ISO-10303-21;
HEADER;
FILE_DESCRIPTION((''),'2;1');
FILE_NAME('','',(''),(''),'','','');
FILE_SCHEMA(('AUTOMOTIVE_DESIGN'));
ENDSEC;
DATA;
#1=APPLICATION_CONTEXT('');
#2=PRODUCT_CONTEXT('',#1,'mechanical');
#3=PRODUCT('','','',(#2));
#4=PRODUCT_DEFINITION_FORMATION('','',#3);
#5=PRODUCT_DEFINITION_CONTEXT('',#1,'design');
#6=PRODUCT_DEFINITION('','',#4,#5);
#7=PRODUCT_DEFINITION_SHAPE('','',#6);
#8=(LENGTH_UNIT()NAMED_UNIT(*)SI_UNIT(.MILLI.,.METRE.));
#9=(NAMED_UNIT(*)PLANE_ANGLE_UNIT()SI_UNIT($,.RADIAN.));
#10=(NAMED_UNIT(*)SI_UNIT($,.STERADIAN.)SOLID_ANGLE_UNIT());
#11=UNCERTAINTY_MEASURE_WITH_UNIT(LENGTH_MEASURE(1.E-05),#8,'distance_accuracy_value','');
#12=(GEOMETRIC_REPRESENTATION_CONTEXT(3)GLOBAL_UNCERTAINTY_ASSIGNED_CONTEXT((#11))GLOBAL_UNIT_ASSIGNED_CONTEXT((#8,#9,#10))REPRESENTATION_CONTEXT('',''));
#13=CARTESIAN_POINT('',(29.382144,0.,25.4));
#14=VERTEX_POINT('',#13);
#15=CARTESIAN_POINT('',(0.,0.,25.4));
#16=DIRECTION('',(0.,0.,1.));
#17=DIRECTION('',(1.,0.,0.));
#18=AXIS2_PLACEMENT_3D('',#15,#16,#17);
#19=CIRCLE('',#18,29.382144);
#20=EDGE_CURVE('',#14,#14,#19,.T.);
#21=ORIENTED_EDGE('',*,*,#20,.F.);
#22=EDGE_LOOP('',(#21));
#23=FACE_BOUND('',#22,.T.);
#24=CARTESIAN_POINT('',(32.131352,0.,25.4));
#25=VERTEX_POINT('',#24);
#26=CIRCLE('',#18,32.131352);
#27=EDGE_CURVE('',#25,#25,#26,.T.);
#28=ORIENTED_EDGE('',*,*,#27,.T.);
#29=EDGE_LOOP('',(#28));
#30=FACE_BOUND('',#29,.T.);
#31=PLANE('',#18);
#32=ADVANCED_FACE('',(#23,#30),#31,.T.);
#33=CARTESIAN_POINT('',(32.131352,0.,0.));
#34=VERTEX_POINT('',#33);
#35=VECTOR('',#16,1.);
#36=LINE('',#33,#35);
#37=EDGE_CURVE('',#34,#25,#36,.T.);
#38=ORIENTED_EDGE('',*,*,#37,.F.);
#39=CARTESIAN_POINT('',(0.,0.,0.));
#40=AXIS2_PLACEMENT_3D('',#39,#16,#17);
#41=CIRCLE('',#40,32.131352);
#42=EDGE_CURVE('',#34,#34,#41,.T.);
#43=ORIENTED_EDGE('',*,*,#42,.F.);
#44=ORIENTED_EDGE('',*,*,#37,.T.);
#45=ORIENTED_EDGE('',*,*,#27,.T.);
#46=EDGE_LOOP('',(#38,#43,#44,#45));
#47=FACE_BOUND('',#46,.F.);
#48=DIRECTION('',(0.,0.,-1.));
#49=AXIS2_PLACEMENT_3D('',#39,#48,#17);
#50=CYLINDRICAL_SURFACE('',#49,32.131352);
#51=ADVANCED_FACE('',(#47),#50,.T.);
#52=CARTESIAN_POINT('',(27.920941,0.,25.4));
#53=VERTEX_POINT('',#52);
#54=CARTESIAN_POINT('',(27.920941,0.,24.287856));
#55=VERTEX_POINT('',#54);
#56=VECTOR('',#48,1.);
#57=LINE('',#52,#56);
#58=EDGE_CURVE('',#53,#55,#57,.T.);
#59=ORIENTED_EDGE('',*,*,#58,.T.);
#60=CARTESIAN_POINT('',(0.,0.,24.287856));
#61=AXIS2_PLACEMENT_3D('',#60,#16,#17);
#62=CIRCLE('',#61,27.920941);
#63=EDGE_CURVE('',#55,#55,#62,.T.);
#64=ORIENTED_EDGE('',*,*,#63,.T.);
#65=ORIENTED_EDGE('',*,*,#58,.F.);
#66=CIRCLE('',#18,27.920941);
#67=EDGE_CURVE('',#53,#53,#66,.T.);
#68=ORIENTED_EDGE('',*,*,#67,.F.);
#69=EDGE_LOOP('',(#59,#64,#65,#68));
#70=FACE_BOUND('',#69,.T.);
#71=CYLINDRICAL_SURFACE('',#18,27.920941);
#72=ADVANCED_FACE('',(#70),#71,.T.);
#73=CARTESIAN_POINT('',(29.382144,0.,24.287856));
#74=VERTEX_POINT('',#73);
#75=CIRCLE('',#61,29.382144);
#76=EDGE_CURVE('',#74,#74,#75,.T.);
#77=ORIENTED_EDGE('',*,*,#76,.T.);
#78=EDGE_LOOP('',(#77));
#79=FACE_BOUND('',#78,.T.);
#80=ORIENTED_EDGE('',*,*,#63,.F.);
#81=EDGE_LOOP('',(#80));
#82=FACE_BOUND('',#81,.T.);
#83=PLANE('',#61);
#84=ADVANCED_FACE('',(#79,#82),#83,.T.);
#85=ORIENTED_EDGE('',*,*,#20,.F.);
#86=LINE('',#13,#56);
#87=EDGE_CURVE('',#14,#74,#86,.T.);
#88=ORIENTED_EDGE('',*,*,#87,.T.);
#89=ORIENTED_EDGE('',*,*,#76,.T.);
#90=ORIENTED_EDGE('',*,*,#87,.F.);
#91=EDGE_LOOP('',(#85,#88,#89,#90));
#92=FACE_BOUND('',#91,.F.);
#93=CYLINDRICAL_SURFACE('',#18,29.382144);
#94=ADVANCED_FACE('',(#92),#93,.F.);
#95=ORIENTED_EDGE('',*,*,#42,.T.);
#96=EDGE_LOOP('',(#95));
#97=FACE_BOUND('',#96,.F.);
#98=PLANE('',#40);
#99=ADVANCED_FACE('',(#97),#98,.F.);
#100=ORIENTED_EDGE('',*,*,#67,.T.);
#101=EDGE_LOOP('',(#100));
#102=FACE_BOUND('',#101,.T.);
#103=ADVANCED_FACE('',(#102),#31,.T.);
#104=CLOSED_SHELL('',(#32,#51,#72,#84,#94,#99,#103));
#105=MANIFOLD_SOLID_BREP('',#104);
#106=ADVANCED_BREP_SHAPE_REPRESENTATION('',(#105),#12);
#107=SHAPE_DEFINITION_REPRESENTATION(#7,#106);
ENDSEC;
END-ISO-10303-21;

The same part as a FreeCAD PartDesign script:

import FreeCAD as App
import Part
import Sketcher

V = App.Vector

doc = App.newDocument("Part")
params = doc.addObject("Spreadsheet::Sheet", "Params")
for row, (alias, value) in enumerate([
    ("pad1_length", "1 in"),
    ("pocket1_length", "1.112144 mm"),
], start=1):
    params.set(f"A{row}", alias)
    params.set(f"B{row}", "=" + value)
    params.setAlias(f"B{row}", alias)

body = doc.addObject("PartDesign::Body", "Body")

sketch1 = body.newObject("Sketcher::SketchObject", "Sketch")
sketch1.AttachmentSupport = (doc.getObject("XY_Plane"), [""])
sketch1.MapMode = "FlatFace"
sketch1.addGeometry(Part.Circle(V(0, 0, 0), V(0, 0, 1), 32), False)
sketch1.addConstraint([
    Sketcher.Constraint("Coincident", 0, 3, -1, 1),
    Sketcher.Constraint("Diameter", 0, 64.262704),
])
pad1 = body.newObject("PartDesign::Pad", "Pad")
pad1.Profile = sketch1
pad1.setExpression("Length", "Params.pad1_length")

sketch2 = body.newObject("Sketcher::SketchObject", "Sketch001")
sketch2.AttachmentSupport = (doc.getObject("XY_Plane"), [""])
sketch2.MapMode = "FlatFace"
sketch2.AttachmentOffset = App.Placement(V(0, 0, 1 * 25.4), App.Rotation())
sketch2.addGeometry([
    Part.Circle(V(0, 0, 0), V(0, 0, 1), 29),
    Part.Circle(V(0, 0, 0), V(0, 0, 1), 28),
], False)
sketch2.addConstraint([
    Sketcher.Constraint("Coincident", 0, 3, -1, 1),
    Sketcher.Constraint("Coincident", 1, 3, -1, 1),
    Sketcher.Constraint("Diameter", 1, 55.841882),
    Sketcher.Constraint("Diameter", 0, 58.764288),
])
pocket1 = body.newObject("PartDesign::Pocket", "Pocket")
pocket1.Profile = sketch2
pocket1.setExpression("Length", "Params.pocket1_length")

doc.recompute()
